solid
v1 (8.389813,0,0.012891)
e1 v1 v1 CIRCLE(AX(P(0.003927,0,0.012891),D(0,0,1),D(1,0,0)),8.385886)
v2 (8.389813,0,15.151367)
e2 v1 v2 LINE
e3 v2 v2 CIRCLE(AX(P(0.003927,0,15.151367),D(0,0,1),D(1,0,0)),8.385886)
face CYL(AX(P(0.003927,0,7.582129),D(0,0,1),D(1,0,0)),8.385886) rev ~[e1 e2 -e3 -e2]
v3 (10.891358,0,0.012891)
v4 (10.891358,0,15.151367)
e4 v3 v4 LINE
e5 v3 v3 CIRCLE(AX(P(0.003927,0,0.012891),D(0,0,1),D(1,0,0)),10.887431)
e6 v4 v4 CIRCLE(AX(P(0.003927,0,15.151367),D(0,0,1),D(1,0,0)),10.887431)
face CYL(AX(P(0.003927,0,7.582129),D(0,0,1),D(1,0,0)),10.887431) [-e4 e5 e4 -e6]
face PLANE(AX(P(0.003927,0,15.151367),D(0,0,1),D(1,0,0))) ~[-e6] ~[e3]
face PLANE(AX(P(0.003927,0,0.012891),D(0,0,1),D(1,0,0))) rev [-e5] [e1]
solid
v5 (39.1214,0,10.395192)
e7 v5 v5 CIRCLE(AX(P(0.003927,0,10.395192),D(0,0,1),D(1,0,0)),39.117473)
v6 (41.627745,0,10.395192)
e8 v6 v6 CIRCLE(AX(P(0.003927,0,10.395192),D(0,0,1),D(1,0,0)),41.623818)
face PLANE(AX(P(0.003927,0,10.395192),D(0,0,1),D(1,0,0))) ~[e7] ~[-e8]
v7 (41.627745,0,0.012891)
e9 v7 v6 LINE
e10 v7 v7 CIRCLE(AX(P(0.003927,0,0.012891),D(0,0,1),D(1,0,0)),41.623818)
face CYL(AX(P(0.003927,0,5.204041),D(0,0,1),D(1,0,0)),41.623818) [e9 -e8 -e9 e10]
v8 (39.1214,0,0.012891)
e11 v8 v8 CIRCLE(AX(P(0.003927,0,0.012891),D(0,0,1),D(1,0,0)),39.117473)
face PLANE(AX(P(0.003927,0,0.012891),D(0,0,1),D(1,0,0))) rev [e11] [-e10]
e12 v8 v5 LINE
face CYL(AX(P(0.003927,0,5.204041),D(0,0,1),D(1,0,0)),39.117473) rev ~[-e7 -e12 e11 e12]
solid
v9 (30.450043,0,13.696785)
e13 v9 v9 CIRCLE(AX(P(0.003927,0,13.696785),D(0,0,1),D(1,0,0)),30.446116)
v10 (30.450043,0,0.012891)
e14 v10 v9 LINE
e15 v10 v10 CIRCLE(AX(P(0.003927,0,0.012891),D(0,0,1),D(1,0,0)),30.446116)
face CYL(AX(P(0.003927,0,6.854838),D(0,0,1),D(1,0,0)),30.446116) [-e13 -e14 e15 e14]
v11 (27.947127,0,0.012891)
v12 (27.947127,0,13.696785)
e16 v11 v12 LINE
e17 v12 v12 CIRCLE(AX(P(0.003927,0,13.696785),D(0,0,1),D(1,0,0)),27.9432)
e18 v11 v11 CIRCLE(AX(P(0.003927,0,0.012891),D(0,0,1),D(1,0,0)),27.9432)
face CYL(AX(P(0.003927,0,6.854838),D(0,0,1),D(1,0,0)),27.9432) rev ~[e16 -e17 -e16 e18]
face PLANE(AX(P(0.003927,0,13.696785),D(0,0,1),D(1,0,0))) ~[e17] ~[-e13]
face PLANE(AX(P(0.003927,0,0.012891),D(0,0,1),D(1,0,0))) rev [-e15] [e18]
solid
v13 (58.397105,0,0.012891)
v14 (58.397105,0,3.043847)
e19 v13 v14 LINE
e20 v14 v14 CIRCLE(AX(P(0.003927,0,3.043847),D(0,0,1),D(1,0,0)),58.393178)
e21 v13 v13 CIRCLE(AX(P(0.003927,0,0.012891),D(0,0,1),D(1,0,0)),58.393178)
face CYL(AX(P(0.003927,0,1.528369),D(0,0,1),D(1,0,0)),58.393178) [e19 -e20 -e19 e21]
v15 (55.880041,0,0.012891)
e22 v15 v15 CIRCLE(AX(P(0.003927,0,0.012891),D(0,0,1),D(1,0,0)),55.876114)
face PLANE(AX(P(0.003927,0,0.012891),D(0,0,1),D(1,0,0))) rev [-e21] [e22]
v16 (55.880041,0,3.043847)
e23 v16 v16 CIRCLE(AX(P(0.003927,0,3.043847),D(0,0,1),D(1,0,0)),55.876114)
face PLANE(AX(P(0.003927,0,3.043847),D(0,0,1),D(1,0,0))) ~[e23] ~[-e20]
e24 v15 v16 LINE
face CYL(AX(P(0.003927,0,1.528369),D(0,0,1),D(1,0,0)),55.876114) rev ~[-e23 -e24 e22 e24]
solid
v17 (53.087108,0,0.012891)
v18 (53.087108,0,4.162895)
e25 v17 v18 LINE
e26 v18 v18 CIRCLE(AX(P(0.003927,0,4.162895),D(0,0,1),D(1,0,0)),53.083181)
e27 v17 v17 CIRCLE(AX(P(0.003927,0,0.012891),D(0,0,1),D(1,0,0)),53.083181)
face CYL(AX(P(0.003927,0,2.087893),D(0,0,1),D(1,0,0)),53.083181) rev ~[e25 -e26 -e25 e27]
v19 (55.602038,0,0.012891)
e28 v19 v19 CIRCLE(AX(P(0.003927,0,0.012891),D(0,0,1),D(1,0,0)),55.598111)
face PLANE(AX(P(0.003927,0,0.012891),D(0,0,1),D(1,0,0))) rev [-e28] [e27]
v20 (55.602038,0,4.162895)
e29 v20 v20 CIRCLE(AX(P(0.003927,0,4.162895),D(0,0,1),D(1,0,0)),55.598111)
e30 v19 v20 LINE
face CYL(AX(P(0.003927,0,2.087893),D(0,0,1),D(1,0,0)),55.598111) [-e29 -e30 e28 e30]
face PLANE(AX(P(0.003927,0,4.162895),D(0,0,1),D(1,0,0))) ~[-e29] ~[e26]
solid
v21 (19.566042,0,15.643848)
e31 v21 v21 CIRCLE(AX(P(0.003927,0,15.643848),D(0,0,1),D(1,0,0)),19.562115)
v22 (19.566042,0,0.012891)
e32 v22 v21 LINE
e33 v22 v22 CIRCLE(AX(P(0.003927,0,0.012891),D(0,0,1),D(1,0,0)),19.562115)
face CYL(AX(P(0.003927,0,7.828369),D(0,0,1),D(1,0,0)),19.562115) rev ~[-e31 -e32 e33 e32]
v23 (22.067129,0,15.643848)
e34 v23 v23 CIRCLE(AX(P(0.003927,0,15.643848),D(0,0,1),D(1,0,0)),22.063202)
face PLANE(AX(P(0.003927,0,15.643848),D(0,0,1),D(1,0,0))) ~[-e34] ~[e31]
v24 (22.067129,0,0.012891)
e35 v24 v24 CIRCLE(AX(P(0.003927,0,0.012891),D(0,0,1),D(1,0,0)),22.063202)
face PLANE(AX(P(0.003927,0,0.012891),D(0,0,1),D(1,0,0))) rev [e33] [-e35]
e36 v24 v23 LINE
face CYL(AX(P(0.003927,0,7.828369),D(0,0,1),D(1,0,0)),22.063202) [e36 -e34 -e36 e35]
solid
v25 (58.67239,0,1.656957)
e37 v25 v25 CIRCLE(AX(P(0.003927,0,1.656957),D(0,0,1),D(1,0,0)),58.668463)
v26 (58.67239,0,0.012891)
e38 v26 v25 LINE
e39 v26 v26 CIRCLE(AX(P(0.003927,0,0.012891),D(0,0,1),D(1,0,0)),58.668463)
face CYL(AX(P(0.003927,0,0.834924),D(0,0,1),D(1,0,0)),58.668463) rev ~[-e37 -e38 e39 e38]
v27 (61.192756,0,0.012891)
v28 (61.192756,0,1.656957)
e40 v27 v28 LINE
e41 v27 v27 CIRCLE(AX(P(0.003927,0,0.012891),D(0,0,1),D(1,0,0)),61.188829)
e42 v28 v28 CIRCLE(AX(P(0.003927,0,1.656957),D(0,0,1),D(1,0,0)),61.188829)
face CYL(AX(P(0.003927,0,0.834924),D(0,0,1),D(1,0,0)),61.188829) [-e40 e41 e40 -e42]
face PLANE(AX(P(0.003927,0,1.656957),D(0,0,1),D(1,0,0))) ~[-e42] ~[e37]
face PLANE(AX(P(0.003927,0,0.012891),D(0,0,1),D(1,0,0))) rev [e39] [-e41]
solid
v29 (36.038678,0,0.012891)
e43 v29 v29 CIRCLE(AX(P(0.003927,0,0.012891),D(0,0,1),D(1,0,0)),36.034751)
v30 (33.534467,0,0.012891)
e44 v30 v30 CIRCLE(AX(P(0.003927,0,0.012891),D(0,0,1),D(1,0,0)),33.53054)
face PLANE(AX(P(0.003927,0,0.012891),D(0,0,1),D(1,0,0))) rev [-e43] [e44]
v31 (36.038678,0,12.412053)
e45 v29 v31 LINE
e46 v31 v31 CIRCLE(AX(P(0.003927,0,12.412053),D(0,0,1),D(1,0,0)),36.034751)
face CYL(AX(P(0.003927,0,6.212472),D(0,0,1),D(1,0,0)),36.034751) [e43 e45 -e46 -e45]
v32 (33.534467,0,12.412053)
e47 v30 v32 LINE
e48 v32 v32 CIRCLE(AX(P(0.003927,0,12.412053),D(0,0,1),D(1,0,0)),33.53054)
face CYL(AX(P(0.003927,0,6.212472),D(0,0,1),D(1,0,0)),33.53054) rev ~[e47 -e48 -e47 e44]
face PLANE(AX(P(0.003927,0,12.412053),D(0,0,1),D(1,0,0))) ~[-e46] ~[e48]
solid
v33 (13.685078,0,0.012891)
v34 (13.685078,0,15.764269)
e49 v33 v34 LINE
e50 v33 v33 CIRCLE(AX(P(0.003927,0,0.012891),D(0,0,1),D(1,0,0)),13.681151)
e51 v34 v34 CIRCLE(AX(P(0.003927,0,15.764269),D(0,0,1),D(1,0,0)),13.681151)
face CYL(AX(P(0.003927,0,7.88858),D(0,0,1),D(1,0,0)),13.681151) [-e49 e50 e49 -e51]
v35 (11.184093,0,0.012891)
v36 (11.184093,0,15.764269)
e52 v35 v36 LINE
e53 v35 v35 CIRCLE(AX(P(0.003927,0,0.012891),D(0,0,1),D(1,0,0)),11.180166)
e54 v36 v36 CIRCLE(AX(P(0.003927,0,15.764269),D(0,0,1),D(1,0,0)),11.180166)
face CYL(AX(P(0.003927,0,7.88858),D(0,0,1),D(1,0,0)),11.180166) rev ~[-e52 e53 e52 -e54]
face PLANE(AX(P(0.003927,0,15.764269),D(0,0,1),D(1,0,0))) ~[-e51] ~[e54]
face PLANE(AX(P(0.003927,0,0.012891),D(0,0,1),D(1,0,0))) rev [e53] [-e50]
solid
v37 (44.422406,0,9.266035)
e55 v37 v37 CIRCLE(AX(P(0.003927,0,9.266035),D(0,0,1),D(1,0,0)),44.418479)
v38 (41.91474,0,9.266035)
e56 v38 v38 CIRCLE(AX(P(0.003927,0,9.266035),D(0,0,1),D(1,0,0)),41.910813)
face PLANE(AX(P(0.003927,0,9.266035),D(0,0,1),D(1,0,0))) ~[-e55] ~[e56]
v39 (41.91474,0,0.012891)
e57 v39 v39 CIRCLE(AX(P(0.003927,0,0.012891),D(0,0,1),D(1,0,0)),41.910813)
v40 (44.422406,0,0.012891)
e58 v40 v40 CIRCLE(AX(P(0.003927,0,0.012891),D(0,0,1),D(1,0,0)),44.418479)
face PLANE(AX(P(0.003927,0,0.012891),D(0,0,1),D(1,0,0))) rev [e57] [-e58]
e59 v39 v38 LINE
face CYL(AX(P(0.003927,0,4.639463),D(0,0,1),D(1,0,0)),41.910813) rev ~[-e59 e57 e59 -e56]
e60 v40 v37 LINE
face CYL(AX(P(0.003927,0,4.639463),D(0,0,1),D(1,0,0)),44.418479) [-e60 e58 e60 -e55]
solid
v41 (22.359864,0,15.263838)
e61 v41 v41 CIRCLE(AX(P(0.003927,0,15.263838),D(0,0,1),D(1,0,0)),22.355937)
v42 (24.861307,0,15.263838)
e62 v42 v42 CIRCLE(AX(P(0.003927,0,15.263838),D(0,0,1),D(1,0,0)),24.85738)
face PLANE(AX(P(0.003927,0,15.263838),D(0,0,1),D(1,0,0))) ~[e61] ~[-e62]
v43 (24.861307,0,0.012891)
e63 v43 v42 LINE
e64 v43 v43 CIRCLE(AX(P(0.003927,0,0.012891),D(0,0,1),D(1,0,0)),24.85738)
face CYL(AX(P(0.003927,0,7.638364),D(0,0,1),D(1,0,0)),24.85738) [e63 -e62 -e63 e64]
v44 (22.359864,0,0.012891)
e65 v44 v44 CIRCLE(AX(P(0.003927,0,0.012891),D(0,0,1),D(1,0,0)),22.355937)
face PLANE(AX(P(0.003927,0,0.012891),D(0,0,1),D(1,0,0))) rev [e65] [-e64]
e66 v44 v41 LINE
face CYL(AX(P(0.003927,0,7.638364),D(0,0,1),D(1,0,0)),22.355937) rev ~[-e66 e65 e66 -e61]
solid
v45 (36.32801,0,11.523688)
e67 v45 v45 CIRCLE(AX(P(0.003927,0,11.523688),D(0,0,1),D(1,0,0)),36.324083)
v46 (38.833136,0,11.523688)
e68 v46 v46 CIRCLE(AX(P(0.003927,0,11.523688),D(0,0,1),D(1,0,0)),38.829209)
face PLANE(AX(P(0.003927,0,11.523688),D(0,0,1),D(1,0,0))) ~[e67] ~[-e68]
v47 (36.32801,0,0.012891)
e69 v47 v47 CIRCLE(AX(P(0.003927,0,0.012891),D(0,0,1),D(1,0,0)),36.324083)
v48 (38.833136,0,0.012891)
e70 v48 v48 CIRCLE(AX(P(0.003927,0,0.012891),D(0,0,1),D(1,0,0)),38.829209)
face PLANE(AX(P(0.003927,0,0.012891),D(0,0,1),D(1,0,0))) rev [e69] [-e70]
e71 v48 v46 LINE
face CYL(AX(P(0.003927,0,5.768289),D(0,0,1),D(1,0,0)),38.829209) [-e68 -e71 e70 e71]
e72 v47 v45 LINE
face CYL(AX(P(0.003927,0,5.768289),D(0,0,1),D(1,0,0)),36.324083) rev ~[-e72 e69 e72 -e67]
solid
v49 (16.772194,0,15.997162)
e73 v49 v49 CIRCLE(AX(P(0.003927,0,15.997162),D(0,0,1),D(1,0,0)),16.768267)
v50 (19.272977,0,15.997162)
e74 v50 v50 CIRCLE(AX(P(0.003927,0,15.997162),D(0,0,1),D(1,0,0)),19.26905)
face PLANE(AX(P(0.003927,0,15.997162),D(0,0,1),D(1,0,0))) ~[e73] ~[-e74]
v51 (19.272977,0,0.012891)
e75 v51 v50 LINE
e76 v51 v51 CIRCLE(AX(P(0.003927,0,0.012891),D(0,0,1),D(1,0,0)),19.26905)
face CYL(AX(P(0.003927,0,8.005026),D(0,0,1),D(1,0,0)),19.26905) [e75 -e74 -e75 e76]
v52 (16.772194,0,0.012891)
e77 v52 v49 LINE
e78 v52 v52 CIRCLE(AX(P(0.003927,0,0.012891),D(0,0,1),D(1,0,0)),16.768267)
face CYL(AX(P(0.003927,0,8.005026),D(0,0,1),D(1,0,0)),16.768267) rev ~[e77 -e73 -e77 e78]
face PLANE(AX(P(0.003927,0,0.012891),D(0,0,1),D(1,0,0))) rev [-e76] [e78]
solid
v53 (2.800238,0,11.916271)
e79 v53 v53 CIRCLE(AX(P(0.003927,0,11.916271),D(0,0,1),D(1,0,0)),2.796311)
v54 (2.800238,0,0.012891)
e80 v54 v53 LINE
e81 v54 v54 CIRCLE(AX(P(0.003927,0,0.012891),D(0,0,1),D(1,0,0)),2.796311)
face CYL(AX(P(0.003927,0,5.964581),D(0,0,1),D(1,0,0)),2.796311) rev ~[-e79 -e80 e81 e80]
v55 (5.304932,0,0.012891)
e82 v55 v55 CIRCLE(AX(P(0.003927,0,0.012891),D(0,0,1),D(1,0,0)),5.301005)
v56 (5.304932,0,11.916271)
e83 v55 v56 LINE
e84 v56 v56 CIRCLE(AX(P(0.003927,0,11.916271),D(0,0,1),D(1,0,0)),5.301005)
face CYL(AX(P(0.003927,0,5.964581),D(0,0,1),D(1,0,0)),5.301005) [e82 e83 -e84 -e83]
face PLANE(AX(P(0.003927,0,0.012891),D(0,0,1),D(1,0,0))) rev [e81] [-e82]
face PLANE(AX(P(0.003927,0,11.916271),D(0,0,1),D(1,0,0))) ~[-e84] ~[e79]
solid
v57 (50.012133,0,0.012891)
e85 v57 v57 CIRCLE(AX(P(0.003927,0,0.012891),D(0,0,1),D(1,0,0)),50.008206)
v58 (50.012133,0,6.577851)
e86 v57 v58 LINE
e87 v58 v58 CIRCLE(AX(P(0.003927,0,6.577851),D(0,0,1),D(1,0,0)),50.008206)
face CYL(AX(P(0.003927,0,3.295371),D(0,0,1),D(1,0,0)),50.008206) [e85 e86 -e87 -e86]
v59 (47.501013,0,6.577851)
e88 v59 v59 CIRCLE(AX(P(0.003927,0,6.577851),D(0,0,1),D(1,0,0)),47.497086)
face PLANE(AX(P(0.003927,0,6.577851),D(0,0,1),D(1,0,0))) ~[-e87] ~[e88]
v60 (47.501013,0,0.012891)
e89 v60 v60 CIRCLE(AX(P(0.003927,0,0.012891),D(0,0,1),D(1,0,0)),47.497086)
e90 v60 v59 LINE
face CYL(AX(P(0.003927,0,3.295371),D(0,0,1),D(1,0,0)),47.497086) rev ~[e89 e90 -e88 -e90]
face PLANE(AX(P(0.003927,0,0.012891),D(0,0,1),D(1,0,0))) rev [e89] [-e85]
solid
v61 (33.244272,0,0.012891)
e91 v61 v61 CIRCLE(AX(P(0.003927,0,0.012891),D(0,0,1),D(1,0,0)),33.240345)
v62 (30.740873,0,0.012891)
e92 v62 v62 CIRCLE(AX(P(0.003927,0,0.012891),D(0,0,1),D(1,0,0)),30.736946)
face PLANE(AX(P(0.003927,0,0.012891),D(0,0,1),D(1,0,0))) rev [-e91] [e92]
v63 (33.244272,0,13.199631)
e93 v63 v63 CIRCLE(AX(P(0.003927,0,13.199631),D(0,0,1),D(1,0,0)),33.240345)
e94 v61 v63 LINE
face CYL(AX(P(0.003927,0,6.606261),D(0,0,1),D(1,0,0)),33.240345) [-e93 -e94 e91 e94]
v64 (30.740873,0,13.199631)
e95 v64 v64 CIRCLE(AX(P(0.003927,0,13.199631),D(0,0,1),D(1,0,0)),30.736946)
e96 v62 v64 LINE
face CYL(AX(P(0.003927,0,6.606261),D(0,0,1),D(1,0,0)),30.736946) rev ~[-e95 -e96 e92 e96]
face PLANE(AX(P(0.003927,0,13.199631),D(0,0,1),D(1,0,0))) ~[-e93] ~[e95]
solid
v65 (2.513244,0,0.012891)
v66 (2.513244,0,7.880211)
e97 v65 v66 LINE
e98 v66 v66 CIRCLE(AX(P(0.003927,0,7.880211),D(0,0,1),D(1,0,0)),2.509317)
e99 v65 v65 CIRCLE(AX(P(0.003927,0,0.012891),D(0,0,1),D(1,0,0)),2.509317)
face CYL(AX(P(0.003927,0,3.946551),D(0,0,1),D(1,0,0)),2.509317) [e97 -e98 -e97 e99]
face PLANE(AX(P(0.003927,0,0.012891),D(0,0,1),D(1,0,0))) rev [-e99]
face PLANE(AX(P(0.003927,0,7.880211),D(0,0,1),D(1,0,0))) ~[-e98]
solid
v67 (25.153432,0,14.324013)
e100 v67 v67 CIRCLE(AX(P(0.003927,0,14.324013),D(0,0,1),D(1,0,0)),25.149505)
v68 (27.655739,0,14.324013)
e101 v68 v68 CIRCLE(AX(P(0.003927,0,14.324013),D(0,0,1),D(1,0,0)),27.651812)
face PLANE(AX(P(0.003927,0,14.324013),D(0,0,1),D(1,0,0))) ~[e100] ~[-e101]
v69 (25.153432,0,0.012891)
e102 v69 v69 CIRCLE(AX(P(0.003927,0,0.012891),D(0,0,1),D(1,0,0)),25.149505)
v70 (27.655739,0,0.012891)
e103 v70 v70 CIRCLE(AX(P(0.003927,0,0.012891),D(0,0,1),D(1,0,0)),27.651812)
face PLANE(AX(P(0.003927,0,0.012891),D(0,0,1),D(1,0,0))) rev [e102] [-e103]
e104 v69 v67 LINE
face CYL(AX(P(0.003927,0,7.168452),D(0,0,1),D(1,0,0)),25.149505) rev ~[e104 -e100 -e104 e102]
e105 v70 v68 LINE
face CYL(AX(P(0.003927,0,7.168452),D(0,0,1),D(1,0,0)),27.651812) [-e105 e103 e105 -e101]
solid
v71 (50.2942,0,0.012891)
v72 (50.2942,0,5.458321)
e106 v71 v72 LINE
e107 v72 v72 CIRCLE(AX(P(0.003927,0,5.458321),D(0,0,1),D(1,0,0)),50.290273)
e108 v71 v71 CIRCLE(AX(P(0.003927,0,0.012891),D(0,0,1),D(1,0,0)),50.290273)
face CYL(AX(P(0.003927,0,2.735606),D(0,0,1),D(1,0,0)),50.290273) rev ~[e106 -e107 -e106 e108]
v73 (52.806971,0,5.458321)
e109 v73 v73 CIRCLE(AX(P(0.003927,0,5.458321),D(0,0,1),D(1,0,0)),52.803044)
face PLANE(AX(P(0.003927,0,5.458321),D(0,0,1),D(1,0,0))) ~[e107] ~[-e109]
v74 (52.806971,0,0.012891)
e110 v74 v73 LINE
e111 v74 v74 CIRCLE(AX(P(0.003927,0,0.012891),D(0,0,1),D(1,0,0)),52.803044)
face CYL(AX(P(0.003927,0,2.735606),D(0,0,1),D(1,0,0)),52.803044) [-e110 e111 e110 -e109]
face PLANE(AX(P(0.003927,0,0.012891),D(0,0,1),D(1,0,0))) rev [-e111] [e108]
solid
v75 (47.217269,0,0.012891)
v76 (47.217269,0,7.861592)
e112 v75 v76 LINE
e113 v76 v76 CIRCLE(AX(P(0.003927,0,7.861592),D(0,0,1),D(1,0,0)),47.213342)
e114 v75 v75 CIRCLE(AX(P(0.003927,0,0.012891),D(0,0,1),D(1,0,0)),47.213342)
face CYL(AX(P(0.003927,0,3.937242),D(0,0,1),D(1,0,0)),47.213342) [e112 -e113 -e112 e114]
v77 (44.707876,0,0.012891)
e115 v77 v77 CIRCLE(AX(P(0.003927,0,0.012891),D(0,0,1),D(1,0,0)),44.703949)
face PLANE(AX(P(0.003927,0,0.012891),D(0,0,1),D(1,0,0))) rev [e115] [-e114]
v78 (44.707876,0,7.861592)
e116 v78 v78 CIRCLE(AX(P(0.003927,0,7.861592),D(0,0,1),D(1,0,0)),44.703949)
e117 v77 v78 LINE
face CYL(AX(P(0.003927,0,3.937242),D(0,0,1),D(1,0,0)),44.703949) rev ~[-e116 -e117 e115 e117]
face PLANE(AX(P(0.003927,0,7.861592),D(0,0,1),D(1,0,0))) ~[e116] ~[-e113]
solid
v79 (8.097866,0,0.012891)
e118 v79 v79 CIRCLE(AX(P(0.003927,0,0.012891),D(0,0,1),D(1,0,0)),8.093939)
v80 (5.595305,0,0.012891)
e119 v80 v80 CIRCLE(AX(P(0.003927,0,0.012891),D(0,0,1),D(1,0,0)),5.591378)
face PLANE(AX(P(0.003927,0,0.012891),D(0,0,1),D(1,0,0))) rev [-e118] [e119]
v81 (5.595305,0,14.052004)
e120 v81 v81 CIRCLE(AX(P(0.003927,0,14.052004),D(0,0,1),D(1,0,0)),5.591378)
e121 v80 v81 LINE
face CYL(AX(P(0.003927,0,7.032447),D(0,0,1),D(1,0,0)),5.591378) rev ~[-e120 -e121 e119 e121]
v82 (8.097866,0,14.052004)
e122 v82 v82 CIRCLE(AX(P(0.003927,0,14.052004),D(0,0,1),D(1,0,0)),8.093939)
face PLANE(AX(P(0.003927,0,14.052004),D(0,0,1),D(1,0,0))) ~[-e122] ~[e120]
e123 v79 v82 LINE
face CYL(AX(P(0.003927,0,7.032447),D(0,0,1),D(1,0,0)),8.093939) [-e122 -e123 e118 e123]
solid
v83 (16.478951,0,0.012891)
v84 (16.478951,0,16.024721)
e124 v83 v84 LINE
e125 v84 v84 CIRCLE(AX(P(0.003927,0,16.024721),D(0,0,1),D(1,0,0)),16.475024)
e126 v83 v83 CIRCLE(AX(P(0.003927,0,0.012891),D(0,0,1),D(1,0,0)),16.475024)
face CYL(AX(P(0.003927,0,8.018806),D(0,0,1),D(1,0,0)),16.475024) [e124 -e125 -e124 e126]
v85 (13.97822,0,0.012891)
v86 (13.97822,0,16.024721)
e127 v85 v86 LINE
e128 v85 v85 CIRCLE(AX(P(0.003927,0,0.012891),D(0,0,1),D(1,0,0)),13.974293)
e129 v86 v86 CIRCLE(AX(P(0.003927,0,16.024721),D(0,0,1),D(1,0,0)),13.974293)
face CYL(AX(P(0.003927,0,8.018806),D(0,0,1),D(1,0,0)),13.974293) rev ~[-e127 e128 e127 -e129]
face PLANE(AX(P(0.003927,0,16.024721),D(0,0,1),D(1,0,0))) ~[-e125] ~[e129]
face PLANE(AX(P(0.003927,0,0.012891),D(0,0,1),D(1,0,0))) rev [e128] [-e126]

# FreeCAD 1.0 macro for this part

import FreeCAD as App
import Part
import Sketcher
Q = App.Units.Quantity


def add_polygon(sketch, points):
    """Adds a closed chain of lines whose ends are joined by coincident constraints."""
    first, n = sketch.GeometryCount, len(points)
    for a, b in zip(points, points[1:] + points[:1]):
        sketch.addGeometry(Part.LineSegment(App.Vector(*a, 0), App.Vector(*b, 0)), False)
    for i in range(n):
        sketch.addConstraint(Sketcher.Constraint("Coincident", first + i, 2, first + (i + 1) % n, 1))

doc = App.newDocument("Part")
body = doc.addObject("PartDesign::Body", "Body")

sketch1 = body.newObject("Sketcher::SketchObject", "Sketch")
sketch1.AttachmentSupport = (doc.getObject("XZ_Plane"), [""])
sketch1.MapMode = "FlatFace"
add_polygon(sketch1, [(0, 7.9), (0, 0), (2.5, 0), (2.5, 7.9)])
sketch1.addGeometry(Part.LineSegment(App.Vector(0, 0, 0), App.Vector(0, 7.9, 0)), True)
sketch1.addConstraint([
    Sketcher.Constraint("Vertical", 0),
    Sketcher.Constraint("Horizontal", 1),
    Sketcher.Constraint("Vertical", 2),
    Sketcher.Constraint("Horizontal", 3),
    Sketcher.Constraint("Vertical", 4),
    Sketcher.Constraint("Coincident", 4, 1, 0, 2),
    Sketcher.Constraint("Horizontal", 2, 2, 4, 2),
    Sketcher.Constraint("DistanceY", 0, 2, 0, 1, Q("7.86732 mm")),
    Sketcher.Constraint("DistanceX", 1, 1, 1, 2, Q("2.509317 mm")),
    Sketcher.Constraint("DistanceY", -1, 1, 0, 2, Q("0.012891 mm")),
    Sketcher.Constraint("DistanceX", -1, 1, 0, 2, Q("0.003927 mm")),
])
revolution = body.newObject("PartDesign::Revolution", "Revolution")
revolution.Profile = sketch1
revolution.ReferenceAxis = (sketch1, ["Axis0"])
revolution.Angle = 360
body2 = doc.addObject("PartDesign::Body", "Body001")

sketch2 = body2.newObject("Sketcher::SketchObject", "Sketch001")
sketch2.AttachmentSupport = (doc.getObject("XZ_Plane001"), [""])
sketch2.MapMode = "FlatFace"
add_polygon(sketch2, [(2.8, 11.9), (2.8, 0), (5.3, 0), (5.3, 11.9)])
sketch2.addGeometry(Part.LineSegment(App.Vector(0, 0, 0), App.Vector(0, 11.9, 0)), True)
sketch2.addConstraint([
    Sketcher.Constraint("Vertical", 0),
    Sketcher.Constraint("Horizontal", 1),
    Sketcher.Constraint("Vertical", 2),
    Sketcher.Constraint("Horizontal", 3),
    Sketcher.Constraint("Vertical", 4),
    Sketcher.Constraint("Horizontal", 1, 2, 4, 1),
    Sketcher.Constraint("Horizontal", 3, 2, 4, 2),
    Sketcher.Constraint("DistanceY", 0, 2, 0, 1, Q("11.90338 mm")),
    Sketcher.Constraint("DistanceX", 1, 1, 1, 2, Q("2.504694 mm")),
    Sketcher.Constraint("DistanceX", -1, 1, 0, 2, Q("2.800238 mm")),
    Sketcher.Constraint("DistanceY", -1, 1, 0, 2, Q("0.012891 mm")),
    Sketcher.Constraint("DistanceX", 4, 1, 0, 2, Q("2.796311 mm")),
])
revolution2 = body2.newObject("PartDesign::Revolution", "Revolution001")
revolution2.Profile = sketch2
revolution2.ReferenceAxis = (sketch2, ["Axis0"])
revolution2.Angle = 360
body3 = doc.addObject("PartDesign::Body", "Body002")

sketch3 = body3.newObject("Sketcher::SketchObject", "Sketch002")
sketch3.AttachmentSupport = (doc.getObject("XZ_Plane002"), [""])
sketch3.MapMode = "FlatFace"
add_polygon(sketch3, [(5.6, 14.1), (5.6, 0), (8.1, 0), (8.1, 14.1)])
sketch3.addGeometry(Part.LineSegment(App.Vector(0, 0, 0), App.Vector(0, 14.1, 0)), True)
sketch3.addConstraint([
    Sketcher.Constraint("Vertical", 0),
    Sketcher.Constraint("Horizontal", 1),
    Sketcher.Constraint("Vertical", 2),
    Sketcher.Constraint("Horizontal", 3),
    Sketcher.Constraint("Vertical", 4),
    Sketcher.Constraint("Horizontal", 1, 2, 4, 1),
    Sketcher.Constraint("Horizontal", 3, 2, 4, 2),
    Sketcher.Constraint("DistanceX", 1, 1, 1, 2, Q("2.50256 mm")),
    Sketcher.Constraint("DistanceY", 0, 2, 0, 1, Q("14.039113 mm")),
    Sketcher.Constraint("DistanceY", -1, 1, 0, 2, Q("0.012891 mm")),
    Sketcher.Constraint("DistanceX", 4, 1, 0, 2, Q("5.591378 mm")),
    Sketcher.Constraint("DistanceX", -1, 1, 0, 2, Q("5.595305 mm")),
])
revolution3 = body3.newObject("PartDesign::Revolution", "Revolution002")
revolution3.Profile = sketch3
revolution3.ReferenceAxis = (sketch3, ["Axis0"])
revolution3.Angle = 360
body4 = doc.addObject("PartDesign::Body", "Body003")

sketch4 = body4.newObject("Sketcher::SketchObject", "Sketch003")
sketch4.AttachmentSupport = (doc.getObject("XZ_Plane003"), [""])
sketch4.MapMode = "FlatFace"
add_polygon(sketch4, [(8.4, 15.2), (8.4, 0), (10.9, 0), (10.9, 15.2)])
sketch4.addGeometry(Part.LineSegment(App.Vector(0, 0, 0), App.Vector(0, 15.2, 0)), True)
sketch4.addConstraint([
    Sketcher.Constraint("Vertical", 0),
    Sketcher.Constraint("Horizontal", 1),
    Sketcher.Constraint("Vertical", 2),
    Sketcher.Constraint("Horizontal", 3),
    Sketcher.Constraint("Vertical", 4),
    Sketcher.Constraint("Horizontal", 1, 2, 4, 1),
    Sketcher.Constraint("Horizontal", 3, 2, 4, 2),
    Sketcher.Constraint("DistanceX", 1, 1, 1, 2, Q("2.501544 mm")),
    Sketcher.Constraint("DistanceY", 0, 2, 0, 1, Q("15.138476 mm")),
    Sketcher.Constraint("DistanceY", -1, 1, 0, 2, Q("0.012891 mm")),
    Sketcher.Constraint("DistanceX", 4, 1, 1, 2, Q("10.887431 mm")),
    Sketcher.Constraint("DistanceX", -1, 1, 0, 2, Q("8.389813 mm")),
])
revolution4 = body4.newObject("PartDesign::Revolution", "Revolution003")
revolution4.Profile = sketch4
revolution4.ReferenceAxis = (sketch4, ["Axis0"])
revolution4.Angle = 360
body5 = doc.addObject("PartDesign::Body", "Body004")

sketch5 = body5.newObject("Sketcher::SketchObject", "Sketch004")
sketch5.AttachmentSupport = (doc.getObject("XZ_Plane004"), [""])
sketch5.MapMode = "FlatFace"
add_polygon(sketch5, [(11.2, 15.8), (11.2, 0), (13.7, 0), (13.7, 15.8)])
sketch5.addGeometry(Part.LineSegment(App.Vector(0, 0, 0), App.Vector(0, 15.8, 0)), True)
sketch5.addConstraint([
    Sketcher.Constraint("Vertical", 0),
    Sketcher.Constraint("Horizontal", 1),
    Sketcher.Constraint("Vertical", 2),
    Sketcher.Constraint("Horizontal", 3),
    Sketcher.Constraint("Vertical", 4),
    Sketcher.Constraint("Horizontal", 1, 2, 4, 1),
    Sketcher.Constraint("Horizontal", 3, 2, 4, 2),
    Sketcher.Constraint("DistanceY", 0, 2, 0, 1, Q("15.751378 mm")),
    Sketcher.Constraint("DistanceX", 1, 1, 1, 2, Q("2.500986 mm")),
    Sketcher.Constraint("DistanceY", -1, 1, 0, 2, Q("0.012891 mm")),
    Sketcher.Constraint("DistanceX", -1, 1, 1, 2, Q("13.685078 mm")),
    Sketcher.Constraint("DistanceX", 4, 1, 1, 2, Q("13.681151 mm")),
])
revolution5 = body5.newObject("PartDesign::Revolution", "Revolution004")
revolution5.Profile = sketch5
revolution5.ReferenceAxis = (sketch5, ["Axis0"])
revolution5.Angle = 360
body6 = doc.addObject("PartDesign::Body", "Body005")

sketch6 = body6.newObject("Sketcher::SketchObject", "Sketch005")
sketch6.AttachmentSupport = (doc.getObject("XZ_Plane005"), [""])
sketch6.MapMode = "FlatFace"
add_polygon(sketch6, [(14, 16), (14, 0), (16.5, 0), (16.5, 16)])
sketch6.addGeometry(Part.LineSegment(App.Vector(0, 0, 0), App.Vector(0, 16, 0)), True)
sketch6.addConstraint([
    Sketcher.Constraint("Vertical", 0),
    Sketcher.Constraint("Horizontal", 1),
    Sketcher.Constraint("Vertical", 2),
    Sketcher.Constraint("Horizontal", 3),
    Sketcher.Constraint("Vertical", 4),
    Sketcher.Constraint("Horizontal", 1, 2, 4, 1),
    Sketcher.Constraint("Horizontal", 3, 2, 4, 2),
    Sketcher.Constraint("DistanceX", 1, 1, 1, 2, Q("2.500732 mm")),
    Sketcher.Constraint("DistanceY", 0, 2, 0, 1, Q("16.01183 mm")),
    Sketcher.Constraint("DistanceX", -1, 1, 0, 2, Q("13.97822 mm")),
    Sketcher.Constraint("DistanceY", -1, 1, 0, 2, Q("0.012891 mm")),
    Sketcher.Constraint("DistanceX", -1, 1, 4, 1, Q("0.003927 mm")),
])
revolution6 = body6.newObject("PartDesign::Revolution", "Revolution005")
revolution6.Profile = sketch6
revolution6.ReferenceAxis = (sketch6, ["Axis0"])
revolution6.Angle = 360
body7 = doc.addObject("PartDesign::Body", "Body006")

sketch7 = body7.newObject("Sketcher::SketchObject", "Sketch006")
sketch7.AttachmentSupport = (doc.getObject("XZ_Plane006"), [""])
sketch7.MapMode = "FlatFace"
add_polygon(sketch7, [(16.8, 16), (16.8, 0), (19.3, 0), (19.3, 16)])
sketch7.addGeometry(Part.LineSegment(App.Vector(0, 0, 0), App.Vector(0, 16, 0)), True)
sketch7.addConstraint([
    Sketcher.Constraint("Vertical", 0),
    Sketcher.Constraint("Horizontal", 1),
    Sketcher.Constraint("Vertical", 2),
    Sketcher.Constraint("Horizontal", 3),
    Sketcher.Constraint("Vertical", 4),
    Sketcher.Constraint("Horizontal", 1, 2, 4, 1),
    Sketcher.Constraint("Horizontal", 3, 2, 4, 2),
    Sketcher.Constraint("DistanceY", 0, 2, 0, 1, Q("15.984271 mm")),
    Sketcher.Constraint("DistanceX", 1, 1, 1, 2, Q("2.500782 mm")),
    Sketcher.Constraint("DistanceY", -1, 1, 0, 2, Q("0.012891 mm")),
    Sketcher.Constraint("DistanceX", 4, 1, 1, 2, Q("19.26905 mm")),
    Sketcher.Constraint("DistanceX", -1, 1, 0, 2, Q("16.772194 mm")),
])
revolution7 = body7.newObject("PartDesign::Revolution", "Revolution006")
revolution7.Profile = sketch7
revolution7.ReferenceAxis = (sketch7, ["Axis0"])
revolution7.Angle = 360
body8 = doc.addObject("PartDesign::Body", "Body007")

sketch8 = body8.newObject("Sketcher::SketchObject", "Sketch007")
sketch8.AttachmentSupport = (doc.getObject("XZ_Plane007"), [""])
sketch8.MapMode = "FlatFace"
add_polygon(sketch8, [(19.6, 15.6), (19.6, 0), (22.1, 0), (22.1, 15.6)])
sketch8.addGeometry(Part.LineSegment(App.Vector(0, 0, 0), App.Vector(0, 15.6, 0)), True)
sketch8.addConstraint([
    Sketcher.Constraint("Vertical", 0),
    Sketcher.Constraint("Horizontal", 1),
    Sketcher.Constraint("Vertical", 2),
    Sketcher.Constraint("Horizontal", 3),
    Sketcher.Constraint("Vertical", 4),
    Sketcher.Constraint("Horizontal", 1, 2, 4, 1),
    Sketcher.Constraint("Horizontal", 3, 2, 4, 2),
    Sketcher.Constraint("DistanceX", 1, 1, 1, 2, Q("2.501087 mm")),
    Sketcher.Constraint("DistanceY", 0, 2, 0, 1, Q("15.630957 mm")),
    Sketcher.Constraint("DistanceX", -1, 1, 0, 2, Q("19.566042 mm")),
    Sketcher.Constraint("DistanceY", -1, 1, 0, 2, Q("0.012891 mm")),
    Sketcher.Constraint("DistanceX", -1, 1, 4, 1, Q("0.003927 mm")),
])
revolution8 = body8.newObject("PartDesign::Revolution", "Revolution007")
revolution8.Profile = sketch8
revolution8.ReferenceAxis = (sketch8, ["Axis0"])
revolution8.Angle = 360
body9 = doc.addObject("PartDesign::Body", "Body008")

sketch9 = body9.newObject("Sketcher::SketchObject", "Sketch008")
sketch9.AttachmentSupport = (doc.getObject("XZ_Plane008"), [""])
sketch9.MapMode = "FlatFace"
add_polygon(sketch9, [(22.4, 15.3), (22.4, 0), (24.9, 0), (24.9, 15.3)])
sketch9.addGeometry(Part.LineSegment(App.Vector(0, 0, 0), App.Vector(0, 15.3, 0)), True)
sketch9.addConstraint([
    Sketcher.Constraint("Vertical", 0),
    Sketcher.Constraint("Horizontal", 1),
    Sketcher.Constraint("Vertical", 2),
    Sketcher.Constraint("Horizontal", 3),
    Sketcher.Constraint("Vertical", 4),
    Sketcher.Constraint("Horizontal", 1, 2, 4, 1),
    Sketcher.Constraint("Horizontal", 3, 2, 4, 2),
    Sketcher.Constraint("DistanceX", 1, 1, 1, 2, Q("2.501443 mm")),
    Sketcher.Constraint("DistanceY", 0, 2, 0, 1, Q("15.250947 mm")),
    Sketcher.Constraint("DistanceY", -1, 1, 0, 2, Q("0.012891 mm")),
    Sketcher.Constraint("DistanceX", 4, 1, 1, 2, Q("24.85738 mm")),
    Sketcher.Constraint("DistanceX", -1, 1, 0, 2, Q("22.359864 mm")),
])
revolution9 = body9.newObject("PartDesign::Revolution", "Revolution008")
revolution9.Profile = sketch9
revolution9.ReferenceAxis = (sketch9, ["Axis0"])
revolution9.Angle = 360
body10 = doc.addObject("PartDesign::Body", "Body009")

sketch10 = body10.newObject("Sketcher::SketchObject", "Sketch009")
sketch10.AttachmentSupport = (doc.getObject("XZ_Plane009"), [""])
sketch10.MapMode = "FlatFace"
add_polygon(sketch10, [(25.2, 14.3), (25.2, 0), (27.7, 0), (27.7, 14.3)])
sketch10.addGeometry(Part.LineSegment(App.Vector(0, 0, 0), App.Vector(0, 14.3, 0)), True)
sketch10.addConstraint([
    Sketcher.Constraint("Vertical", 0),
    Sketcher.Constraint("Horizontal", 1),
    Sketcher.Constraint("Vertical", 2),
    Sketcher.Constraint("Horizontal", 3),
    Sketcher.Constraint("Vertical", 4),
    Sketcher.Constraint("Horizontal", 1, 2, 4, 1),
    Sketcher.Constraint("Horizontal", 3, 2, 4, 2),
    Sketcher.Constraint("DistanceX", 1, 1, 1, 2, Q("2.502306 mm")),
    Sketcher.Constraint("DistanceY", 0, 2, 0, 1, Q("14.311122 mm")),
    Sketcher.Constraint("DistanceY", -1, 1, 0, 2, Q("0.012891 mm")),
    Sketcher.Constraint("DistanceX", -1, 1, 1, 2, Q("27.655739 mm")),
    Sketcher.Constraint("DistanceX", 4, 1, 1, 2, Q("27.651812 mm")),
])
revolution10 = body10.newObject("PartDesign::Revolution", "Revolution009")
revolution10.Profile = sketch10
revolution10.ReferenceAxis = (sketch10, ["Axis0"])
revolution10.Angle = 360
body11 = doc.addObject("PartDesign::Body", "Body010")

sketch11 = body11.newObject("Sketcher::SketchObject", "Sketch010")
sketch11.AttachmentSupport = (doc.getObject("XZ_Plane010"), [""])
sketch11.MapMode = "FlatFace"
add_polygon(sketch11, [(27.9, 13.7), (27.9, 0), (30.5, 0), (30.5, 13.7)])
sketch11.addGeometry(Part.LineSegment(App.Vector(0, 0, 0), App.Vector(0, 13.7, 0)), True)
sketch11.addConstraint([
    Sketcher.Constraint("Vertical", 0),
    Sketcher.Constraint("Horizontal", 1),
    Sketcher.Constraint("Vertical", 2),
    Sketcher.Constraint("Horizontal", 3),
    Sketcher.Constraint("Vertical", 4),
    Sketcher.Constraint("Horizontal", 1, 2, 4, 1),
    Sketcher.Constraint("Horizontal", 3, 2, 4, 2),
    Sketcher.Constraint("DistanceX", 4, 1, 0, 2, Q("27.9432 mm")),
    Sketcher.Constraint("DistanceX", 1, 1, 1, 2, Q("2.502916 mm")),
    Sketcher.Constraint("DistanceY", 0, 2, 0, 1, Q("13.683894 mm")),
    Sketcher.Constraint("DistanceY", -1, 1, 0, 2, Q("0.012891 mm")),
    Sketcher.Constraint("DistanceX", -1, 1, 0, 2, Q("27.947127 mm")),
])
revolution11 = body11.newObject("PartDesign::Revolution", "Revolution010")
revolution11.Profile = sketch11
revolution11.ReferenceAxis = (sketch11, ["Axis0"])
revolution11.Angle = 360
body12 = doc.addObject("PartDesign::Body", "Body011")

sketch12 = body12.newObject("Sketcher::SketchObject", "Sketch011")
sketch12.AttachmentSupport = (doc.getObject("XZ_Plane011"), [""])
sketch12.MapMode = "FlatFace"
add_polygon(sketch12, [(30.7, 13.2), (30.7, 0), (33.2, 0), (33.2, 13.2)])
sketch12.addGeometry(Part.LineSegment(App.Vector(0, 0, 0), App.Vector(0, 13.2, 0)), True)
sketch12.addConstraint([
    Sketcher.Constraint("Vertical", 0),
    Sketcher.Constraint("Horizontal", 1),
    Sketcher.Constraint("Vertical", 2),
    Sketcher.Constraint("Horizontal", 3),
    Sketcher.Constraint("Vertical", 4),
    Sketcher.Constraint("Horizontal", 1, 2, 4, 1),
    Sketcher.Constraint("Horizontal", 3, 2, 4, 2),
    Sketcher.Constraint("DistanceX", 1, 1, 1, 2, Q("2.503399 mm")),
    Sketcher.Constraint("DistanceY", 0, 2, 0, 1, Q("13.18674 mm")),
    Sketcher.Constraint("DistanceY", -1, 1, 0, 2, Q("0.012891 mm")),
    Sketcher.Constraint("DistanceX", -1, 1, 1, 2, Q("33.244272 mm")),
    Sketcher.Constraint("DistanceX", -1, 1, 4, 1, Q("0.003927 mm")),
])
revolution12 = body12.newObject("PartDesign::Revolution", "Revolution011")
revolution12.Profile = sketch12
revolution12.ReferenceAxis = (sketch12, ["Axis0"])
revolution12.Angle = 360
body13 = doc.addObject("PartDesign::Body", "Body012")

sketch13 = body13.newObject("Sketcher::SketchObject", "Sketch012")
sketch13.AttachmentSupport = (doc.getObject("XZ_Plane012"), [""])
sketch13.MapMode = "FlatFace"
add_polygon(sketch13, [(33.5, 12.4), (33.5, 0), (36, 0), (36, 12.4)])
sketch13.addGeometry(Part.LineSegment(App.Vector(0, 0, 0), App.Vector(0, 12.4, 0)), True)
sketch13.addConstraint([
    Sketcher.Constraint("Vertical", 0),
    Sketcher.Constraint("Horizontal", 1),
    Sketcher.Constraint("Vertical", 2),
    Sketcher.Constraint("Horizontal", 3),
    Sketcher.Constraint("Vertical", 4),
    Sketcher.Constraint("Horizontal", 1, 2, 4, 1),
    Sketcher.Constraint("Horizontal", 3, 2, 4, 2),
    Sketcher.Constraint("DistanceX", 1, 1, 1, 2, Q("2.504211 mm")),
    Sketcher.Constraint("DistanceY", 0, 2, 0, 1, Q("12.399162 mm")),
    Sketcher.Constraint("DistanceY", -1, 1, 0, 2, Q("0.012891 mm")),
    Sketcher.Constraint("DistanceX", -1, 1, 1, 2, Q("36.038678 mm")),
    Sketcher.Constraint("DistanceX", 4, 1, 0, 2, Q("33.53054 mm")),
])
revolution13 = body13.newObject("PartDesign::Revolution", "Revolution012")
revolution13.Profile = sketch13
revolution13.ReferenceAxis = (sketch13, ["Axis0"])
revolution13.Angle = 360
body14 = doc.addObject("PartDesign::Body", "Body013")

sketch14 = body14.newObject("Sketcher::SketchObject", "Sketch013")
sketch14.AttachmentSupport = (doc.getObject("XZ_Plane013"), [""])
sketch14.MapMode = "FlatFace"
add_polygon(sketch14, [(36.3, 11.5), (36.3, 0), (38.8, 0), (38.8, 11.5)])
sketch14.addGeometry(Part.LineSegment(App.Vector(0, 0, 0), App.Vector(0, 11.5, 0)), True)
sketch14.addConstraint([
    Sketcher.Constraint("Vertical", 0),
    Sketcher.Constraint("Horizontal", 1),
    Sketcher.Constraint("Vertical", 2),
    Sketcher.Constraint("Horizontal", 3),
    Sketcher.Constraint("Vertical", 4),
    Sketcher.Constraint("Horizontal", 1, 2, 4, 1),
    Sketcher.Constraint("Horizontal", 3, 2, 4, 2),
    Sketcher.Constraint("DistanceX", 1, 1, 1, 2, Q("2.505126 mm")),
    Sketcher.Constraint("DistanceY", 0, 2, 0, 1, Q("11.510797 mm")),
    Sketcher.Constraint("DistanceX", -1, 1, 0, 2, Q("36.32801 mm")),
    Sketcher.Constraint("DistanceY", -1, 1, 0, 2, Q("0.012891 mm")),
    Sketcher.Constraint("DistanceX", 4, 1, 1, 2, Q("38.829209 mm")),
])
revolution14 = body14.newObject("PartDesign::Revolution", "Revolution013")
revolution14.Profile = sketch14
revolution14.ReferenceAxis = (sketch14, ["Axis0"])
revolution14.Angle = 360
body15 = doc.addObject("PartDesign::Body", "Body014")

sketch15 = body15.newObject("Sketcher::SketchObject", "Sketch014")
sketch15.AttachmentSupport = (doc.getObject("XZ_Plane014"), [""])
sketch15.MapMode = "FlatFace"
add_polygon(sketch15, [(39.1, 10.4), (39.1, 0), (41.6, 0), (41.6, 10.4)])
sketch15.addGeometry(Part.LineSegment(App.Vector(0, 0, 0), App.Vector(0, 10.4, 0)), True)
sketch15.addConstraint([
    Sketcher.Constraint("Vertical", 0),
    Sketcher.Constraint("Horizontal", 1),
    Sketcher.Constraint("Vertical", 2),
    Sketcher.Constraint("Horizontal", 3),
    Sketcher.Constraint("Vertical", 4),
    Sketcher.Constraint("Horizontal", 1, 2, 4, 1),
    Sketcher.Constraint("Horizontal", 3, 2, 4, 2),
    Sketcher.Constraint("DistanceY", 0, 2, 0, 1, Q("10.382301 mm")),
    Sketcher.Constraint("DistanceX", -1, 1, 0, 2, Q("39.1214 mm")),
    Sketcher.Constraint("DistanceX", 1, 1, 1, 2, Q("2.506345 mm")),
    Sketcher.Constraint("DistanceY", -1, 1, 0, 2, Q("0.012891 mm")),
    Sketcher.Constraint("DistanceX", 4, 1, 1, 2, Q("41.623818 mm")),
])
revolution15 = body15.newObject("PartDesign::Revolution", "Revolution014")
revolution15.Profile = sketch15
revolution15.ReferenceAxis = (sketch15, ["Axis0"])
revolution15.Angle = 360
body16 = doc.addObject("PartDesign::Body", "Body015")

sketch16 = body16.newObject("Sketcher::SketchObject", "Sketch015")
sketch16.AttachmentSupport = (doc.getObject("XZ_Plane015"), [""])
sketch16.MapMode = "FlatFace"
add_polygon(sketch16, [(41.9, 9.3), (41.9, 0), (44.4, 0), (44.4, 9.3)])
sketch16.addGeometry(Part.LineSegment(App.Vector(0, 0, 0), App.Vector(0, 9.3, 0)), True)
sketch16.addConstraint([
    Sketcher.Constraint("Vertical", 0),
    Sketcher.Constraint("Horizontal", 1),
    Sketcher.Constraint("Vertical", 2),
    Sketcher.Constraint("Horizontal", 3),
    Sketcher.Constraint("Vertical", 4),
    Sketcher.Constraint("Horizontal", 1, 2, 4, 1),
    Sketcher.Constraint("Horizontal", 3, 2, 4, 2),
    Sketcher.Constraint("DistanceX", 1, 1, 1, 2, Q("2.507666 mm")),
    Sketcher.Constraint("DistanceY", 0, 2, 0, 1, Q("9.253144 mm")),
    Sketcher.Constraint("DistanceX", -1, 1, 0, 2, Q("41.91474 mm")),
    Sketcher.Constraint("DistanceY", -1, 1, 0, 2, Q("0.012891 mm")),
    Sketcher.Constraint("DistanceX", 4, 1, 1, 2, Q("44.418479 mm")),
])
revolution16 = body16.newObject("PartDesign::Revolution", "Revolution015")
revolution16.Profile = sketch16
revolution16.ReferenceAxis = (sketch16, ["Axis0"])
revolution16.Angle = 360
body17 = doc.addObject("PartDesign::Body", "Body016")

sketch17 = body17.newObject("Sketcher::SketchObject", "Sketch016")
sketch17.AttachmentSupport = (doc.getObject("XZ_Plane016"), [""])
sketch17.MapMode = "FlatFace"
add_polygon(sketch17, [(44.7, 7.9), (44.7, 0), (47.2, 0), (47.2, 7.9)])
sketch17.addGeometry(Part.LineSegment(App.Vector(0, 0, 0), App.Vector(0, 7.9, 0)), True)
sketch17.addConstraint([
    Sketcher.Constraint("Vertical", 0),
    Sketcher.Constraint("Horizontal", 1),
    Sketcher.Constraint("Vertical", 2),
    Sketcher.Constraint("Horizontal", 3),
    Sketcher.Constraint("Vertical", 4),
    Sketcher.Constraint("Horizontal", 1, 2, 4, 1),
    Sketcher.Constraint("Horizontal", 3, 2, 4, 2),
    Sketcher.Constraint("DistanceY", 0, 2, 0, 1, Q("7.848702 mm")),
    Sketcher.Constraint("DistanceX", 1, 1, 1, 2, Q("2.509393 mm")),
    Sketcher.Constraint("DistanceY", -1, 1, 0, 2, Q("0.012891 mm")),
    Sketcher.Constraint("DistanceX", -1, 1, 1, 2, Q("47.217269 mm")),
    Sketcher.Constraint("DistanceX", 4, 1, 0, 2, Q("44.703949 mm")),
])
revolution17 = body17.newObject("PartDesign::Revolution", "Revolution016")
revolution17.Profile = sketch17
revolution17.ReferenceAxis = (sketch17, ["Axis0"])
revolution17.Angle = 360
body18 = doc.addObject("PartDesign::Body", "Body017")

sketch18 = body18.newObject("Sketcher::SketchObject", "Sketch017")
sketch18.AttachmentSupport = (doc.getObject("XZ_Plane017"), [""])
sketch18.MapMode = "FlatFace"
add_polygon(sketch18, [(47.5, 6.6), (47.5, 0), (50, 0), (50, 6.6)])
sketch18.addGeometry(Part.LineSegment(App.Vector(0, 0, 0), App.Vector(0, 6.6, 0)), True)
sketch18.addConstraint([
    Sketcher.Constraint("Vertical", 0),
    Sketcher.Constraint("Horizontal", 1),
    Sketcher.Constraint("Vertical", 2),
    Sketcher.Constraint("Horizontal", 3),
    Sketcher.Constraint("Vertical", 4),
    Sketcher.Constraint("Horizontal", 1, 2, 4, 1),
    Sketcher.Constraint("Horizontal", 3, 2, 4, 2),
    Sketcher.Constraint("DistanceX", 1, 1, 1, 2, Q("2.51112 mm")),
    Sketcher.Constraint("DistanceY", 0, 2, 0, 1, Q("6.56496 mm")),
    Sketcher.Constraint("DistanceY", -1, 1, 0, 2, Q("0.012891 mm")),
    Sketcher.Constraint("DistanceX", -1, 1, 0, 2, Q("47.501013 mm")),
    Sketcher.Constraint("DistanceX", -1, 1, 4, 1, Q("0.003927 mm")),
])
revolution18 = body18.newObject("PartDesign::Revolution", "Revolution017")
revolution18.Profile = sketch18
revolution18.ReferenceAxis = (sketch18, ["Axis0"])
revolution18.Angle = 360
body19 = doc.addObject("PartDesign::Body", "Body018")

sketch19 = body19.newObject("Sketcher::SketchObject", "Sketch018")
sketch19.AttachmentSupport = (doc.getObject("XZ_Plane018"), [""])
sketch19.MapMode = "FlatFace"
add_polygon(sketch19, [(50.3, 5.5), (50.3, 0), (52.8, 0), (52.8, 5.5)])
sketch19.addGeometry(Part.LineSegment(App.Vector(0, 0, 0), App.Vector(0, 5.5, 0)), True)
sketch19.addConstraint([
    Sketcher.Constraint("Vertical", 0),
    Sketcher.Constraint("Horizontal", 1),
    Sketcher.Constraint("Vertical", 2),
    Sketcher.Constraint("Horizontal", 3),
    Sketcher.Constraint("Vertical", 4),
    Sketcher.Constraint("Horizontal", 1, 2, 4, 1),
    Sketcher.Constraint("Horizontal", 3, 2, 4, 2),
    Sketcher.Constraint("DistanceX", 1, 1, 1, 2, Q("2.512771 mm")),
    Sketcher.Constraint("DistanceY", 0, 2, 0, 1, Q("5.44543 mm")),
    Sketcher.Constraint("DistanceX", -1, 1, 0, 2, Q("50.2942 mm")),
    Sketcher.Constraint("DistanceY", -1, 1, 0, 2, Q("0.012891 mm")),
    Sketcher.Constraint("DistanceX", -1, 1, 4, 1, Q("0.003927 mm")),
])
revolution19 = body19.newObject("PartDesign::Revolution", "Revolution018")
revolution19.Profile = sketch19
revolution19.ReferenceAxis = (sketch19, ["Axis0"])
revolution19.Angle = 360
body20 = doc.addObject("PartDesign::Body", "Body019")

sketch20 = body20.newObject("Sketcher::SketchObject", "Sketch019")
sketch20.AttachmentSupport = (doc.getObject("XZ_Plane019"), [""])
sketch20.MapMode = "FlatFace"
add_polygon(sketch20, [(53.1, 4.2), (53.1, 0), (55.6, 0), (55.6, 4.2)])
sketch20.addGeometry(Part.LineSegment(App.Vector(0, 0, 0), App.Vector(0, 4.2, 0)), True)
sketch20.addConstraint([
    Sketcher.Constraint("Vertical", 0),
    Sketcher.Constraint("Horizontal", 1),
    Sketcher.Constraint("Vertical", 2),
    Sketcher.Constraint("Horizontal", 3),
    Sketcher.Constraint("Vertical", 4),
    Sketcher.Constraint("Horizontal", 1, 2, 4, 1),
    Sketcher.Constraint("Horizontal", 3, 2, 4, 2),
    Sketcher.Constraint("DistanceX", 1, 1, 1, 2, Q("2.51493 mm")),
    Sketcher.Constraint("DistanceY", 0, 2, 0, 1, Q("4.150004 mm")),
    Sketcher.Constraint("DistanceY", -1, 1, 0, 2, Q("0.012891 mm")),
    Sketcher.Constraint("DistanceX", 4, 1, 0, 2, Q("53.083181 mm")),
    Sketcher.Constraint("DistanceX", -1, 1, 0, 2, Q("53.087108 mm")),
])
revolution20 = body20.newObject("PartDesign::Revolution", "Revolution019")
revolution20.Profile = sketch20
revolution20.ReferenceAxis = (sketch20, ["Axis0"])
revolution20.Angle = 360
body21 = doc.addObject("PartDesign::Body", "Body020")

sketch21 = body21.newObject("Sketcher::SketchObject", "Sketch020")
sketch21.AttachmentSupport = (doc.getObject("XZ_Plane020"), [""])
sketch21.MapMode = "FlatFace"
add_polygon(sketch21, [(55.9, 3), (55.9, 0), (58.4, 0), (58.4, 3)])
sketch21.addGeometry(Part.LineSegment(App.Vector(0, 0, 0), App.Vector(0, 3, 0)), True)
sketch21.addConstraint([
    Sketcher.Constraint("Vertical", 0),
    Sketcher.Constraint("Horizontal", 1),
    Sketcher.Constraint("Vertical", 2),
    Sketcher.Constraint("Horizontal", 3),
    Sketcher.Constraint("Vertical", 4),
    Sketcher.Constraint("Horizontal", 1, 2, 4, 1),
    Sketcher.Constraint("Horizontal", 3, 2, 4, 2),
    Sketcher.Constraint("DistanceX", 1, 1, 1, 2, Q("2.517064 mm")),
    Sketcher.Constraint("DistanceY", 0, 2, 0, 1, Q("3.030957 mm")),
    Sketcher.Constraint("DistanceX", -1, 1, 0, 2, Q("55.880041 mm")),
    Sketcher.Constraint("DistanceY", -1, 1, 0, 2, Q("0.012891 mm")),
    Sketcher.Constraint("DistanceX", -1, 1, 4, 1, Q("0.003927 mm")),
])
revolution21 = body21.newObject("PartDesign::Revolution", "Revolution020")
revolution21.Profile = sketch21
revolution21.ReferenceAxis = (sketch21, ["Axis0"])
revolution21.Angle = 360
body22 = doc.addObject("PartDesign::Body", "Body021")

sketch22 = body22.newObject("Sketcher::SketchObject", "Sketch021")
sketch22.AttachmentSupport = (doc.getObject("XZ_Plane021"), [""])
sketch22.MapMode = "FlatFace"
add_polygon(sketch22, [(58.7, 1.7), (58.7, 0), (61.2, 0), (61.2, 1.7)])
sketch22.addGeometry(Part.LineSegment(App.Vector(0, 0, 0), App.Vector(0, 1.7, 0)), True)
sketch22.addConstraint([
    Sketcher.Constraint("Vertical", 0),
    Sketcher.Constraint("Horizontal", 1),
    Sketcher.Constraint("Vertical", 2),
    Sketcher.Constraint("Horizontal", 3),
    Sketcher.Constraint("Vertical", 4),
    Sketcher.Constraint("Horizontal", 1, 2, 4, 1),
    Sketcher.Constraint("Horizontal", 3, 2, 4, 2),
    Sketcher.Constraint("DistanceX", 1, 1, 1, 2, Q("2.520366 mm")),
    Sketcher.Constraint("DistanceY", 0, 2, 0, 1, Q("1.644066 mm")),
    Sketcher.Constraint("DistanceX", -1, 1, 0, 2, Q("58.67239 mm")),
    Sketcher.Constraint("DistanceY", -1, 1, 0, 2, Q("0.012891 mm")),
    Sketcher.Constraint("DistanceX", 4, 1, 1, 2, Q("61.188829 mm")),
])
revolution22 = body22.newObject("PartDesign::Revolution", "Revolution021")
revolution22.Profile = sketch22
revolution22.ReferenceAxis = (sketch22, ["Axis0"])
revolution22.Angle = 360

doc.recompute()
